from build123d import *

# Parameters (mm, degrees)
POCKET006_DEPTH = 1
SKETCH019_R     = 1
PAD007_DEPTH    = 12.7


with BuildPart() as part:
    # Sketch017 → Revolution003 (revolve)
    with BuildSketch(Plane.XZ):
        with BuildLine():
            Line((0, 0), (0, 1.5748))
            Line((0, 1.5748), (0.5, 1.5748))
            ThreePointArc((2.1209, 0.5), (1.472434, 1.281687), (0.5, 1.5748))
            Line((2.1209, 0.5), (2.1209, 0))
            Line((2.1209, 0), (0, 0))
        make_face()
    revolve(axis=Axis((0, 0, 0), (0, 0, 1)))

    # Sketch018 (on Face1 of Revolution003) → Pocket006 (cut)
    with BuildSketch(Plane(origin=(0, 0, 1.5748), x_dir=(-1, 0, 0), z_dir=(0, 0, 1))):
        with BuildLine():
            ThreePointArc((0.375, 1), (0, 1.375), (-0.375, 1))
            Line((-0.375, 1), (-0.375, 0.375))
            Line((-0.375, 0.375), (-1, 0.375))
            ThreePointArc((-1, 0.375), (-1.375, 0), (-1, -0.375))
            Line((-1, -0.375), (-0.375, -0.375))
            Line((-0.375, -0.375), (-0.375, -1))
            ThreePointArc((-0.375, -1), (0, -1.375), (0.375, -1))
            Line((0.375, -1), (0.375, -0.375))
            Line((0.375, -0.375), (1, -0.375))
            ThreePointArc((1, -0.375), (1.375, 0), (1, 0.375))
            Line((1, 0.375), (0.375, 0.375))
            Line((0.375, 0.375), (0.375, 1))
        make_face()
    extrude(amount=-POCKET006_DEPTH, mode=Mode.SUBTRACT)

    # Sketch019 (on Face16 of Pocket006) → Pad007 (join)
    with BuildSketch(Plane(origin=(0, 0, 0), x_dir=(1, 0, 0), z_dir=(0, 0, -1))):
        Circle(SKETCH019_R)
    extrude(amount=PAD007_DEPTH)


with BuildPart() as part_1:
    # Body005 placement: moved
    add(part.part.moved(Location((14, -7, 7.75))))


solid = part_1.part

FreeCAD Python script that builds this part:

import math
import FreeCAD as App
import Part
import Sketcher

doc = App.newDocument("Part")
body = doc.addObject("PartDesign::Body", "Body")

# Sketch on XZ plane
sketch1 = body.newObject("Sketcher::SketchObject", "Sketch")
sketch1.AttachmentSupport = (doc.getObject("XZ_Plane"), [""])
sketch1.MapMode = "FlatFace"
sketch1.addGeometry(Part.LineSegment(App.Vector(0, 1.6, 0), App.Vector(0, 0, 0)), False)
sketch1.addGeometry(Part.LineSegment(App.Vector(0, 0, 0), App.Vector(2.1, 0, 0)), False)
sketch1.addGeometry(Part.LineSegment(App.Vector(2.1, 0, 0), App.Vector(2.1, 0.5, 0)), False)
sketch1.addGeometry(Part.ArcOfCircle(Part.Circle(App.Vector(0.5, -0.2, 0), App.Vector(0, 0, 1), 1.8), math.radians(23), math.radians(90)), False)
sketch1.addGeometry(Part.LineSegment(App.Vector(0.5, 1.6, 0), App.Vector(0, 1.6, 0)), False)
sketch1.addConstraint(Sketcher.Constraint("Coincident", 0, 2, 1, 1))
sketch1.addConstraint(Sketcher.Constraint("Coincident", 1, 2, 2, 1))
sketch1.addConstraint(Sketcher.Constraint("Coincident", 2, 2, 3, 1))
sketch1.addConstraint(Sketcher.Constraint("Tangent", 3, 2, 4, 1))
sketch1.addConstraint(Sketcher.Constraint("Coincident", 4, 2, 0, 1))
sketch1.addConstraint(Sketcher.Constraint("Vertical", 0))
sketch1.addConstraint(Sketcher.Constraint("Horizontal", 1))
sketch1.addConstraint(Sketcher.Constraint("Vertical", 2))
sketch1.addConstraint(Sketcher.Constraint("Horizontal", 4))
sketch1.addConstraint(Sketcher.Constraint("Coincident", 0, 2, -1, 1))
sketch1.addConstraint(Sketcher.Constraint("Equal", 4, 2))
sketch1.addConstraint(Sketcher.Constraint("DistanceX", 4, 2, 4, 1, 0.5))
sketch1.addConstraint(Sketcher.Constraint("DistanceX", 1, 1, 1, 2, 2.1209))
sketch1.addConstraint(Sketcher.Constraint("DistanceY", 0, 2, 0, 1, 1.5748))
revolution = body.newObject("PartDesign::Revolution", "Revolution")
revolution.Profile = sketch1
revolution.ReferenceAxis = (sketch1, ["V_Axis"])
revolution.Angle = 360

# Sketch on XY plane
sketch2 = body.newObject("Sketcher::SketchObject", "Sketch001")
sketch2.AttachmentSupport = (doc.getObject("XY_Plane"), [""])
sketch2.MapMode = "FlatFace"
sketch2.AttachmentOffset = App.Placement(App.Vector(0, 0, 1.5748), App.Rotation())
sketch2.addGeometry(Part.ArcOfCircle(Part.Circle(App.Vector(0, -1, 0), App.Vector(0, 0, 1), 0.38), math.radians(180), math.radians(360)), False)
sketch2.addGeometry(Part.LineSegment(App.Vector(0.38, -1, 0), App.Vector(0.38, -0.38, 0)), False)
sketch2.addGeometry(Part.LineSegment(App.Vector(0.38, -0.38, 0), App.Vector(1, -0.38, 0)), False)
sketch2.addGeometry(Part.ArcOfCircle(Part.Circle(App.Vector(1, 0, 0), App.Vector(0, 0, 1), 0.38), math.radians(-90), math.radians(90)), False)
sketch2.addGeometry(Part.LineSegment(App.Vector(1, 0.38, 0), App.Vector(0.38, 0.38, 0)), False)
sketch2.addGeometry(Part.LineSegment(App.Vector(0.38, 0.38, 0), App.Vector(0.38, 1, 0)), False)
sketch2.addGeometry(Part.ArcOfCircle(Part.Circle(App.Vector(0, 1, 0), App.Vector(0, 0, 1), 0.38), math.radians(0), math.radians(180)), False)
sketch2.addGeometry(Part.LineSegment(App.Vector(-0.38, 1, 0), App.Vector(-0.38, 0.38, 0)), False)
sketch2.addGeometry(Part.LineSegment(App.Vector(-0.38, 0.38, 0), App.Vector(-1, 0.38, 0)), False)
sketch2.addGeometry(Part.ArcOfCircle(Part.Circle(App.Vector(-1, 0, 0), App.Vector(0, 0, 1), 0.38), math.radians(90), math.radians(270)), False)
sketch2.addGeometry(Part.LineSegment(App.Vector(-1, -0.38, 0), App.Vector(-0.38, -0.38, 0)), False)
sketch2.addGeometry(Part.LineSegment(App.Vector(-0.38, -0.38, 0), App.Vector(-0.38, -1, 0)), False)
sketch2.addConstraint(Sketcher.Constraint("Tangent", 0, 2, 1, 1))
sketch2.addConstraint(Sketcher.Constraint("Coincident", 1, 2, 2, 1))
sketch2.addConstraint(Sketcher.Constraint("Tangent", 2, 2, 3, 1))
sketch2.addConstraint(Sketcher.Constraint("Tangent", 3, 2, 4, 1))
sketch2.addConstraint(Sketcher.Constraint("Coincident", 4, 2, 5, 1))
sketch2.addConstraint(Sketcher.Constraint("Tangent", 5, 2, 6, 1))
sketch2.addConstraint(Sketcher.Constraint("Tangent", 6, 2, 7, 1))
sketch2.addConstraint(Sketcher.Constraint("Coincident", 7, 2, 8, 1))
sketch2.addConstraint(Sketcher.Constraint("Tangent", 8, 2, 9, 1))
sketch2.addConstraint(Sketcher.Constraint("Tangent", 9, 2, 10, 1))
sketch2.addConstraint(Sketcher.Constraint("Coincident", 10, 2, 11, 1))
sketch2.addConstraint(Sketcher.Constraint("Tangent", 11, 2, 0, 1))
sketch2.addConstraint(Sketcher.Constraint("Vertical", 1))
sketch2.addConstraint(Sketcher.Constraint("Horizontal", 2))
sketch2.addConstraint(Sketcher.Constraint("Horizontal", 4))
sketch2.addConstraint(Sketcher.Constraint("Vertical", 5))
sketch2.addConstraint(Sketcher.Constraint("Vertical", 7))
sketch2.addConstraint(Sketcher.Constraint("Horizontal", 8))
sketch2.addConstraint(Sketcher.Constraint("Horizontal", 10))
sketch2.addConstraint(Sketcher.Constraint("Vertical", 11))
sketch2.addConstraint(Sketcher.Constraint("Equal", 0, 3))
sketch2.addConstraint(Sketcher.Constraint("Equal", 3, 6))
sketch2.addConstraint(Sketcher.Constraint("Equal", 6, 9))
sketch2.addConstraint(Sketcher.Constraint("Symmetric", 0, 3, 6, 3, -1, 1))
sketch2.addConstraint(Sketcher.Constraint("Symmetric", 3, 3, 9, 3, -1, 1))
sketch2.addConstraint(Sketcher.Constraint("Symmetric", 4, 2, 7, 2, -2))
sketch2.addConstraint(Sketcher.Constraint("Equal", 10, 1))
sketch2.addConstraint(Sketcher.Constraint("DistanceY", 0, 3, -1, 1, 1.0))
sketch2.addConstraint(Sketcher.Constraint("Radius", 0, 0.375))
pocket1 = body.newObject("PartDesign::Pocket", "Pocket")
pocket1.Profile = sketch2
pocket1.Length = 1

# Sketch on XY plane
sketch3 = body.newObject("Sketcher::SketchObject", "Sketch002")
sketch3.AttachmentSupport = (doc.getObject("XY_Plane"), [""])
sketch3.MapMode = "FlatFace"
sketch3.addGeometry(Part.Circle(App.Vector(0, 0, 0), App.Vector(0, 0, 1), 1), False)
sketch3.addConstraint(Sketcher.Constraint("Coincident", 0, 3, -1, 1))
sketch3.addConstraint(Sketcher.Constraint("Diameter", 0, 2.0))
pad1 = body.newObject("PartDesign::Pad", "Pad")
pad1.Profile = sketch3
pad1.Length = 12.7
pad1.Reversed = True
body2 = doc.addObject("PartDesign::Body", "Body001")
doc.recompute()

body.Placement = App.Placement(App.Vector(14, -7, 7.75), App.Rotation(App.Vector(0, 0, 1), 0))
boolean = body2.newObject("PartDesign::Boolean", "Boolean")
boolean.Type = "Fuse"
boolean.addObjects([body])

doc.recompute()
